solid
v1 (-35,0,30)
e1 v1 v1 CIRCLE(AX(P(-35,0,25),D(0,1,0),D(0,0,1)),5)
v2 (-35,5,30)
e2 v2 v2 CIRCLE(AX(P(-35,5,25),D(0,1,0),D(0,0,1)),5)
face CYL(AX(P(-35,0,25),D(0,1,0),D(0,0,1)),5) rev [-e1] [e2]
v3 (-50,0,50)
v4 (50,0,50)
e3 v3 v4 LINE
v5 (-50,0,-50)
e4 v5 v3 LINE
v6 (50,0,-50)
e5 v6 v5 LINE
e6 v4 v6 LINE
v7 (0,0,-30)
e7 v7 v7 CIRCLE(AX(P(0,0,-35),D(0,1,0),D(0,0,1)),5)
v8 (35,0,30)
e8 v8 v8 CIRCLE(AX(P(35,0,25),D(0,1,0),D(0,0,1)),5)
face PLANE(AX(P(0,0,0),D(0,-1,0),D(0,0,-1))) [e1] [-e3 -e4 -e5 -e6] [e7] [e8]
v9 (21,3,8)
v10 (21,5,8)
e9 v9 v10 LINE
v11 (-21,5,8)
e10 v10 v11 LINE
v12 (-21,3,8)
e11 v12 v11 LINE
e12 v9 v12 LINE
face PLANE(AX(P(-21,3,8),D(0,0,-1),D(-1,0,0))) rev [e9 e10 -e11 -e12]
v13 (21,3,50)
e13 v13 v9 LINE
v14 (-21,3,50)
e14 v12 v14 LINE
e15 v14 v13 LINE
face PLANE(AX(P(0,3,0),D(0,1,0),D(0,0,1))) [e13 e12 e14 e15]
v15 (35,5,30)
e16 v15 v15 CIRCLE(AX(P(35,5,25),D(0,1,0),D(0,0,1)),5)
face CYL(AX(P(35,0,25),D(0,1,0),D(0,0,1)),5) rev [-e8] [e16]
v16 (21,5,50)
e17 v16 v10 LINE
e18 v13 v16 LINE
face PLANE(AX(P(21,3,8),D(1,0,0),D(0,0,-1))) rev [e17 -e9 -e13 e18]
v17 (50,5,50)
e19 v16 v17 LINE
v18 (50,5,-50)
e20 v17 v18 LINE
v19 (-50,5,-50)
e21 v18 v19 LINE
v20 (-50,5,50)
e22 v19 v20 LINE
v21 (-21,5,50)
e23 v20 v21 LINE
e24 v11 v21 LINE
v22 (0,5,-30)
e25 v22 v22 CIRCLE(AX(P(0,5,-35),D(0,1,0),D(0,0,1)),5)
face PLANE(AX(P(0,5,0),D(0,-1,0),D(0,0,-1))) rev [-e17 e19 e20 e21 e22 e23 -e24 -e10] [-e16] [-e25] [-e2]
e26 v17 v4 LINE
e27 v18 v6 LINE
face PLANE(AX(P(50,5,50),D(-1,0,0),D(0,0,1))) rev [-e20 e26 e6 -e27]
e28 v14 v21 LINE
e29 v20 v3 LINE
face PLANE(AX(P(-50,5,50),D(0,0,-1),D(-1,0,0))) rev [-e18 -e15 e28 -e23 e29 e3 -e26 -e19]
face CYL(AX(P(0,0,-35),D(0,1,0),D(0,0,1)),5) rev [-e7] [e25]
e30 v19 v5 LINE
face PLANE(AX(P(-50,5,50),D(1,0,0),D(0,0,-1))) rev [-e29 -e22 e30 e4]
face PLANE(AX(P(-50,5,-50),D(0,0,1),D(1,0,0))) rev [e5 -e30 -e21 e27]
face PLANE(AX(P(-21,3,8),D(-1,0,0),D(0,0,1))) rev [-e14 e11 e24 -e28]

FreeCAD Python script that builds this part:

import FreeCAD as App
import Part
import Sketcher

V = App.Vector
Q = App.Units.Quantity


def add_polygon(sketch, points):
    """Adds a closed chain of lines whose ends are joined by coincident constraints."""
    first, n = sketch.GeometryCount, len(points)
    for a, b in zip(points, points[1:] + points[:1]):
        sketch.addGeometry(Part.LineSegment(App.Vector(*a, 0), App.Vector(*b, 0)), False)
    for i in range(n):
        sketch.addConstraint(Sketcher.Constraint("Coincident", first + i, 2, first + (i + 1) % n, 1))

doc = App.newDocument("Part")
body = doc.addObject("PartDesign::Body", "Body")

# Sketch on XZ plane
sketch1 = doc.addObject("Sketcher::SketchObject", "Sketch")
body.addObject(sketch1)
sketch1.AttachmentSupport = (doc.XZ_Plane, [""])
sketch1.MapMode = "FlatFace"
add_polygon(sketch1, [(-50, -50), (-50, 50), (50, 50), (50, -50)])  # lines 0-3
sketch1.addConstraint(Sketcher.Constraint("Vertical", 0))
sketch1.addConstraint(Sketcher.Constraint("Horizontal", 1))
sketch1.addConstraint(Sketcher.Constraint("Vertical", 2))
sketch1.addConstraint(Sketcher.Constraint("Horizontal", 3))
sketch1.addConstraint(Sketcher.Constraint("Symmetric", 0, 2, 2, 2, -1, 1))
sketch1.addConstraint(Sketcher.Constraint("Equal", 3, 0))
sketch1.addConstraint(Sketcher.Constraint("DistanceX", 1, 1, 1, 2, Q("100 mm")))
pad1 = doc.addObject("PartDesign::Pad", "Pad")
body.addObject(pad1)
pad1.Profile = sketch1
pad1.Length = 5
pad1.Reversed = True

# Sketch on XZ plane
sketch2 = doc.addObject("Sketcher::SketchObject", "Sketch001")
body.addObject(sketch2)
sketch2.AttachmentSupport = (doc.XZ_Plane, [""])
sketch2.MapMode = "FlatFace"
sketch2.AttachmentOffset = App.Placement(V(0, 0, -5), App.Rotation())
add_polygon(sketch2, [(-21, 8), (-21, 50), (21, 50), (21, 8)])  # lines 0-3
sketch2.addConstraint(Sketcher.Constraint("Vertical", 0))
sketch2.addConstraint(Sketcher.Constraint("Horizontal", 1))
sketch2.addConstraint(Sketcher.Constraint("Vertical", 2))
sketch2.addConstraint(Sketcher.Constraint("Horizontal", 3))
sketch2.addConstraint(Sketcher.Constraint("Equal", 3, 0))
sketch2.addConstraint(Sketcher.Constraint("DistanceX", 1, 1, 1, 2, Q("42 mm")))
sketch2.addConstraint(Sketcher.Constraint("DistanceX", 0, 2, -1, 1, Q("21 mm")))
sketch2.addConstraint(Sketcher.Constraint("DistanceY", -1, 1, 0, 2, Q("50 mm")))
pocket1 = doc.addObject("PartDesign::Pocket", "Pocket")
body.addObject(pocket1)
pocket1.Profile = sketch2
pocket1.Length = 2
pocket1.Reversed = True

# Sketch on XZ plane
sketch3 = doc.addObject("Sketcher::SketchObject", "Sketch002")
body.addObject(sketch3)
sketch3.AttachmentSupport = (doc.XZ_Plane, [""])
sketch3.MapMode = "FlatFace"
sketch3.AttachmentOffset = App.Placement(V(0, 0, -5), App.Rotation())
sketch3.addGeometry(Part.Circle(V(-35, 25, 0), V(0, 0, 1), 5), False)
sketch3.addGeometry(Part.Circle(V(35, 25, 0), V(0, 0, 1), 5), False)
sketch3.addGeometry(Part.Circle(V(0, -35, 0), V(0, 0, 1), 5), False)
sketch3.addConstraint(Sketcher.Constraint("Equal", 0, 1))
sketch3.addConstraint(Sketcher.Constraint("Equal", 1, 2))
sketch3.addConstraint(Sketcher.Constraint("Symmetric", 0, 3, 1, 3, -2))
sketch3.addConstraint(Sketcher.Constraint("PointOnObject", 2, 3, -2))
sketch3.addConstraint(Sketcher.Constraint("Diameter", 0, Q("10 mm")))
sketch3.addConstraint(Sketcher.Constraint("DistanceX", 0, 3, -1, 1, Q("35 mm")))
sketch3.addConstraint(Sketcher.Constraint("DistanceY", -1, 1, 0, 3, Q("25 mm")))
sketch3.addConstraint(Sketcher.Constraint("DistanceY", 2, 3, -1, 1, Q("35 mm")))
pocket2 = doc.addObject("PartDesign::Pocket", "Pocket001")
body.addObject(pocket2)
pocket2.Profile = sketch3
pocket2.Length = 5
pocket2.Reversed = True

doc.recompute()
